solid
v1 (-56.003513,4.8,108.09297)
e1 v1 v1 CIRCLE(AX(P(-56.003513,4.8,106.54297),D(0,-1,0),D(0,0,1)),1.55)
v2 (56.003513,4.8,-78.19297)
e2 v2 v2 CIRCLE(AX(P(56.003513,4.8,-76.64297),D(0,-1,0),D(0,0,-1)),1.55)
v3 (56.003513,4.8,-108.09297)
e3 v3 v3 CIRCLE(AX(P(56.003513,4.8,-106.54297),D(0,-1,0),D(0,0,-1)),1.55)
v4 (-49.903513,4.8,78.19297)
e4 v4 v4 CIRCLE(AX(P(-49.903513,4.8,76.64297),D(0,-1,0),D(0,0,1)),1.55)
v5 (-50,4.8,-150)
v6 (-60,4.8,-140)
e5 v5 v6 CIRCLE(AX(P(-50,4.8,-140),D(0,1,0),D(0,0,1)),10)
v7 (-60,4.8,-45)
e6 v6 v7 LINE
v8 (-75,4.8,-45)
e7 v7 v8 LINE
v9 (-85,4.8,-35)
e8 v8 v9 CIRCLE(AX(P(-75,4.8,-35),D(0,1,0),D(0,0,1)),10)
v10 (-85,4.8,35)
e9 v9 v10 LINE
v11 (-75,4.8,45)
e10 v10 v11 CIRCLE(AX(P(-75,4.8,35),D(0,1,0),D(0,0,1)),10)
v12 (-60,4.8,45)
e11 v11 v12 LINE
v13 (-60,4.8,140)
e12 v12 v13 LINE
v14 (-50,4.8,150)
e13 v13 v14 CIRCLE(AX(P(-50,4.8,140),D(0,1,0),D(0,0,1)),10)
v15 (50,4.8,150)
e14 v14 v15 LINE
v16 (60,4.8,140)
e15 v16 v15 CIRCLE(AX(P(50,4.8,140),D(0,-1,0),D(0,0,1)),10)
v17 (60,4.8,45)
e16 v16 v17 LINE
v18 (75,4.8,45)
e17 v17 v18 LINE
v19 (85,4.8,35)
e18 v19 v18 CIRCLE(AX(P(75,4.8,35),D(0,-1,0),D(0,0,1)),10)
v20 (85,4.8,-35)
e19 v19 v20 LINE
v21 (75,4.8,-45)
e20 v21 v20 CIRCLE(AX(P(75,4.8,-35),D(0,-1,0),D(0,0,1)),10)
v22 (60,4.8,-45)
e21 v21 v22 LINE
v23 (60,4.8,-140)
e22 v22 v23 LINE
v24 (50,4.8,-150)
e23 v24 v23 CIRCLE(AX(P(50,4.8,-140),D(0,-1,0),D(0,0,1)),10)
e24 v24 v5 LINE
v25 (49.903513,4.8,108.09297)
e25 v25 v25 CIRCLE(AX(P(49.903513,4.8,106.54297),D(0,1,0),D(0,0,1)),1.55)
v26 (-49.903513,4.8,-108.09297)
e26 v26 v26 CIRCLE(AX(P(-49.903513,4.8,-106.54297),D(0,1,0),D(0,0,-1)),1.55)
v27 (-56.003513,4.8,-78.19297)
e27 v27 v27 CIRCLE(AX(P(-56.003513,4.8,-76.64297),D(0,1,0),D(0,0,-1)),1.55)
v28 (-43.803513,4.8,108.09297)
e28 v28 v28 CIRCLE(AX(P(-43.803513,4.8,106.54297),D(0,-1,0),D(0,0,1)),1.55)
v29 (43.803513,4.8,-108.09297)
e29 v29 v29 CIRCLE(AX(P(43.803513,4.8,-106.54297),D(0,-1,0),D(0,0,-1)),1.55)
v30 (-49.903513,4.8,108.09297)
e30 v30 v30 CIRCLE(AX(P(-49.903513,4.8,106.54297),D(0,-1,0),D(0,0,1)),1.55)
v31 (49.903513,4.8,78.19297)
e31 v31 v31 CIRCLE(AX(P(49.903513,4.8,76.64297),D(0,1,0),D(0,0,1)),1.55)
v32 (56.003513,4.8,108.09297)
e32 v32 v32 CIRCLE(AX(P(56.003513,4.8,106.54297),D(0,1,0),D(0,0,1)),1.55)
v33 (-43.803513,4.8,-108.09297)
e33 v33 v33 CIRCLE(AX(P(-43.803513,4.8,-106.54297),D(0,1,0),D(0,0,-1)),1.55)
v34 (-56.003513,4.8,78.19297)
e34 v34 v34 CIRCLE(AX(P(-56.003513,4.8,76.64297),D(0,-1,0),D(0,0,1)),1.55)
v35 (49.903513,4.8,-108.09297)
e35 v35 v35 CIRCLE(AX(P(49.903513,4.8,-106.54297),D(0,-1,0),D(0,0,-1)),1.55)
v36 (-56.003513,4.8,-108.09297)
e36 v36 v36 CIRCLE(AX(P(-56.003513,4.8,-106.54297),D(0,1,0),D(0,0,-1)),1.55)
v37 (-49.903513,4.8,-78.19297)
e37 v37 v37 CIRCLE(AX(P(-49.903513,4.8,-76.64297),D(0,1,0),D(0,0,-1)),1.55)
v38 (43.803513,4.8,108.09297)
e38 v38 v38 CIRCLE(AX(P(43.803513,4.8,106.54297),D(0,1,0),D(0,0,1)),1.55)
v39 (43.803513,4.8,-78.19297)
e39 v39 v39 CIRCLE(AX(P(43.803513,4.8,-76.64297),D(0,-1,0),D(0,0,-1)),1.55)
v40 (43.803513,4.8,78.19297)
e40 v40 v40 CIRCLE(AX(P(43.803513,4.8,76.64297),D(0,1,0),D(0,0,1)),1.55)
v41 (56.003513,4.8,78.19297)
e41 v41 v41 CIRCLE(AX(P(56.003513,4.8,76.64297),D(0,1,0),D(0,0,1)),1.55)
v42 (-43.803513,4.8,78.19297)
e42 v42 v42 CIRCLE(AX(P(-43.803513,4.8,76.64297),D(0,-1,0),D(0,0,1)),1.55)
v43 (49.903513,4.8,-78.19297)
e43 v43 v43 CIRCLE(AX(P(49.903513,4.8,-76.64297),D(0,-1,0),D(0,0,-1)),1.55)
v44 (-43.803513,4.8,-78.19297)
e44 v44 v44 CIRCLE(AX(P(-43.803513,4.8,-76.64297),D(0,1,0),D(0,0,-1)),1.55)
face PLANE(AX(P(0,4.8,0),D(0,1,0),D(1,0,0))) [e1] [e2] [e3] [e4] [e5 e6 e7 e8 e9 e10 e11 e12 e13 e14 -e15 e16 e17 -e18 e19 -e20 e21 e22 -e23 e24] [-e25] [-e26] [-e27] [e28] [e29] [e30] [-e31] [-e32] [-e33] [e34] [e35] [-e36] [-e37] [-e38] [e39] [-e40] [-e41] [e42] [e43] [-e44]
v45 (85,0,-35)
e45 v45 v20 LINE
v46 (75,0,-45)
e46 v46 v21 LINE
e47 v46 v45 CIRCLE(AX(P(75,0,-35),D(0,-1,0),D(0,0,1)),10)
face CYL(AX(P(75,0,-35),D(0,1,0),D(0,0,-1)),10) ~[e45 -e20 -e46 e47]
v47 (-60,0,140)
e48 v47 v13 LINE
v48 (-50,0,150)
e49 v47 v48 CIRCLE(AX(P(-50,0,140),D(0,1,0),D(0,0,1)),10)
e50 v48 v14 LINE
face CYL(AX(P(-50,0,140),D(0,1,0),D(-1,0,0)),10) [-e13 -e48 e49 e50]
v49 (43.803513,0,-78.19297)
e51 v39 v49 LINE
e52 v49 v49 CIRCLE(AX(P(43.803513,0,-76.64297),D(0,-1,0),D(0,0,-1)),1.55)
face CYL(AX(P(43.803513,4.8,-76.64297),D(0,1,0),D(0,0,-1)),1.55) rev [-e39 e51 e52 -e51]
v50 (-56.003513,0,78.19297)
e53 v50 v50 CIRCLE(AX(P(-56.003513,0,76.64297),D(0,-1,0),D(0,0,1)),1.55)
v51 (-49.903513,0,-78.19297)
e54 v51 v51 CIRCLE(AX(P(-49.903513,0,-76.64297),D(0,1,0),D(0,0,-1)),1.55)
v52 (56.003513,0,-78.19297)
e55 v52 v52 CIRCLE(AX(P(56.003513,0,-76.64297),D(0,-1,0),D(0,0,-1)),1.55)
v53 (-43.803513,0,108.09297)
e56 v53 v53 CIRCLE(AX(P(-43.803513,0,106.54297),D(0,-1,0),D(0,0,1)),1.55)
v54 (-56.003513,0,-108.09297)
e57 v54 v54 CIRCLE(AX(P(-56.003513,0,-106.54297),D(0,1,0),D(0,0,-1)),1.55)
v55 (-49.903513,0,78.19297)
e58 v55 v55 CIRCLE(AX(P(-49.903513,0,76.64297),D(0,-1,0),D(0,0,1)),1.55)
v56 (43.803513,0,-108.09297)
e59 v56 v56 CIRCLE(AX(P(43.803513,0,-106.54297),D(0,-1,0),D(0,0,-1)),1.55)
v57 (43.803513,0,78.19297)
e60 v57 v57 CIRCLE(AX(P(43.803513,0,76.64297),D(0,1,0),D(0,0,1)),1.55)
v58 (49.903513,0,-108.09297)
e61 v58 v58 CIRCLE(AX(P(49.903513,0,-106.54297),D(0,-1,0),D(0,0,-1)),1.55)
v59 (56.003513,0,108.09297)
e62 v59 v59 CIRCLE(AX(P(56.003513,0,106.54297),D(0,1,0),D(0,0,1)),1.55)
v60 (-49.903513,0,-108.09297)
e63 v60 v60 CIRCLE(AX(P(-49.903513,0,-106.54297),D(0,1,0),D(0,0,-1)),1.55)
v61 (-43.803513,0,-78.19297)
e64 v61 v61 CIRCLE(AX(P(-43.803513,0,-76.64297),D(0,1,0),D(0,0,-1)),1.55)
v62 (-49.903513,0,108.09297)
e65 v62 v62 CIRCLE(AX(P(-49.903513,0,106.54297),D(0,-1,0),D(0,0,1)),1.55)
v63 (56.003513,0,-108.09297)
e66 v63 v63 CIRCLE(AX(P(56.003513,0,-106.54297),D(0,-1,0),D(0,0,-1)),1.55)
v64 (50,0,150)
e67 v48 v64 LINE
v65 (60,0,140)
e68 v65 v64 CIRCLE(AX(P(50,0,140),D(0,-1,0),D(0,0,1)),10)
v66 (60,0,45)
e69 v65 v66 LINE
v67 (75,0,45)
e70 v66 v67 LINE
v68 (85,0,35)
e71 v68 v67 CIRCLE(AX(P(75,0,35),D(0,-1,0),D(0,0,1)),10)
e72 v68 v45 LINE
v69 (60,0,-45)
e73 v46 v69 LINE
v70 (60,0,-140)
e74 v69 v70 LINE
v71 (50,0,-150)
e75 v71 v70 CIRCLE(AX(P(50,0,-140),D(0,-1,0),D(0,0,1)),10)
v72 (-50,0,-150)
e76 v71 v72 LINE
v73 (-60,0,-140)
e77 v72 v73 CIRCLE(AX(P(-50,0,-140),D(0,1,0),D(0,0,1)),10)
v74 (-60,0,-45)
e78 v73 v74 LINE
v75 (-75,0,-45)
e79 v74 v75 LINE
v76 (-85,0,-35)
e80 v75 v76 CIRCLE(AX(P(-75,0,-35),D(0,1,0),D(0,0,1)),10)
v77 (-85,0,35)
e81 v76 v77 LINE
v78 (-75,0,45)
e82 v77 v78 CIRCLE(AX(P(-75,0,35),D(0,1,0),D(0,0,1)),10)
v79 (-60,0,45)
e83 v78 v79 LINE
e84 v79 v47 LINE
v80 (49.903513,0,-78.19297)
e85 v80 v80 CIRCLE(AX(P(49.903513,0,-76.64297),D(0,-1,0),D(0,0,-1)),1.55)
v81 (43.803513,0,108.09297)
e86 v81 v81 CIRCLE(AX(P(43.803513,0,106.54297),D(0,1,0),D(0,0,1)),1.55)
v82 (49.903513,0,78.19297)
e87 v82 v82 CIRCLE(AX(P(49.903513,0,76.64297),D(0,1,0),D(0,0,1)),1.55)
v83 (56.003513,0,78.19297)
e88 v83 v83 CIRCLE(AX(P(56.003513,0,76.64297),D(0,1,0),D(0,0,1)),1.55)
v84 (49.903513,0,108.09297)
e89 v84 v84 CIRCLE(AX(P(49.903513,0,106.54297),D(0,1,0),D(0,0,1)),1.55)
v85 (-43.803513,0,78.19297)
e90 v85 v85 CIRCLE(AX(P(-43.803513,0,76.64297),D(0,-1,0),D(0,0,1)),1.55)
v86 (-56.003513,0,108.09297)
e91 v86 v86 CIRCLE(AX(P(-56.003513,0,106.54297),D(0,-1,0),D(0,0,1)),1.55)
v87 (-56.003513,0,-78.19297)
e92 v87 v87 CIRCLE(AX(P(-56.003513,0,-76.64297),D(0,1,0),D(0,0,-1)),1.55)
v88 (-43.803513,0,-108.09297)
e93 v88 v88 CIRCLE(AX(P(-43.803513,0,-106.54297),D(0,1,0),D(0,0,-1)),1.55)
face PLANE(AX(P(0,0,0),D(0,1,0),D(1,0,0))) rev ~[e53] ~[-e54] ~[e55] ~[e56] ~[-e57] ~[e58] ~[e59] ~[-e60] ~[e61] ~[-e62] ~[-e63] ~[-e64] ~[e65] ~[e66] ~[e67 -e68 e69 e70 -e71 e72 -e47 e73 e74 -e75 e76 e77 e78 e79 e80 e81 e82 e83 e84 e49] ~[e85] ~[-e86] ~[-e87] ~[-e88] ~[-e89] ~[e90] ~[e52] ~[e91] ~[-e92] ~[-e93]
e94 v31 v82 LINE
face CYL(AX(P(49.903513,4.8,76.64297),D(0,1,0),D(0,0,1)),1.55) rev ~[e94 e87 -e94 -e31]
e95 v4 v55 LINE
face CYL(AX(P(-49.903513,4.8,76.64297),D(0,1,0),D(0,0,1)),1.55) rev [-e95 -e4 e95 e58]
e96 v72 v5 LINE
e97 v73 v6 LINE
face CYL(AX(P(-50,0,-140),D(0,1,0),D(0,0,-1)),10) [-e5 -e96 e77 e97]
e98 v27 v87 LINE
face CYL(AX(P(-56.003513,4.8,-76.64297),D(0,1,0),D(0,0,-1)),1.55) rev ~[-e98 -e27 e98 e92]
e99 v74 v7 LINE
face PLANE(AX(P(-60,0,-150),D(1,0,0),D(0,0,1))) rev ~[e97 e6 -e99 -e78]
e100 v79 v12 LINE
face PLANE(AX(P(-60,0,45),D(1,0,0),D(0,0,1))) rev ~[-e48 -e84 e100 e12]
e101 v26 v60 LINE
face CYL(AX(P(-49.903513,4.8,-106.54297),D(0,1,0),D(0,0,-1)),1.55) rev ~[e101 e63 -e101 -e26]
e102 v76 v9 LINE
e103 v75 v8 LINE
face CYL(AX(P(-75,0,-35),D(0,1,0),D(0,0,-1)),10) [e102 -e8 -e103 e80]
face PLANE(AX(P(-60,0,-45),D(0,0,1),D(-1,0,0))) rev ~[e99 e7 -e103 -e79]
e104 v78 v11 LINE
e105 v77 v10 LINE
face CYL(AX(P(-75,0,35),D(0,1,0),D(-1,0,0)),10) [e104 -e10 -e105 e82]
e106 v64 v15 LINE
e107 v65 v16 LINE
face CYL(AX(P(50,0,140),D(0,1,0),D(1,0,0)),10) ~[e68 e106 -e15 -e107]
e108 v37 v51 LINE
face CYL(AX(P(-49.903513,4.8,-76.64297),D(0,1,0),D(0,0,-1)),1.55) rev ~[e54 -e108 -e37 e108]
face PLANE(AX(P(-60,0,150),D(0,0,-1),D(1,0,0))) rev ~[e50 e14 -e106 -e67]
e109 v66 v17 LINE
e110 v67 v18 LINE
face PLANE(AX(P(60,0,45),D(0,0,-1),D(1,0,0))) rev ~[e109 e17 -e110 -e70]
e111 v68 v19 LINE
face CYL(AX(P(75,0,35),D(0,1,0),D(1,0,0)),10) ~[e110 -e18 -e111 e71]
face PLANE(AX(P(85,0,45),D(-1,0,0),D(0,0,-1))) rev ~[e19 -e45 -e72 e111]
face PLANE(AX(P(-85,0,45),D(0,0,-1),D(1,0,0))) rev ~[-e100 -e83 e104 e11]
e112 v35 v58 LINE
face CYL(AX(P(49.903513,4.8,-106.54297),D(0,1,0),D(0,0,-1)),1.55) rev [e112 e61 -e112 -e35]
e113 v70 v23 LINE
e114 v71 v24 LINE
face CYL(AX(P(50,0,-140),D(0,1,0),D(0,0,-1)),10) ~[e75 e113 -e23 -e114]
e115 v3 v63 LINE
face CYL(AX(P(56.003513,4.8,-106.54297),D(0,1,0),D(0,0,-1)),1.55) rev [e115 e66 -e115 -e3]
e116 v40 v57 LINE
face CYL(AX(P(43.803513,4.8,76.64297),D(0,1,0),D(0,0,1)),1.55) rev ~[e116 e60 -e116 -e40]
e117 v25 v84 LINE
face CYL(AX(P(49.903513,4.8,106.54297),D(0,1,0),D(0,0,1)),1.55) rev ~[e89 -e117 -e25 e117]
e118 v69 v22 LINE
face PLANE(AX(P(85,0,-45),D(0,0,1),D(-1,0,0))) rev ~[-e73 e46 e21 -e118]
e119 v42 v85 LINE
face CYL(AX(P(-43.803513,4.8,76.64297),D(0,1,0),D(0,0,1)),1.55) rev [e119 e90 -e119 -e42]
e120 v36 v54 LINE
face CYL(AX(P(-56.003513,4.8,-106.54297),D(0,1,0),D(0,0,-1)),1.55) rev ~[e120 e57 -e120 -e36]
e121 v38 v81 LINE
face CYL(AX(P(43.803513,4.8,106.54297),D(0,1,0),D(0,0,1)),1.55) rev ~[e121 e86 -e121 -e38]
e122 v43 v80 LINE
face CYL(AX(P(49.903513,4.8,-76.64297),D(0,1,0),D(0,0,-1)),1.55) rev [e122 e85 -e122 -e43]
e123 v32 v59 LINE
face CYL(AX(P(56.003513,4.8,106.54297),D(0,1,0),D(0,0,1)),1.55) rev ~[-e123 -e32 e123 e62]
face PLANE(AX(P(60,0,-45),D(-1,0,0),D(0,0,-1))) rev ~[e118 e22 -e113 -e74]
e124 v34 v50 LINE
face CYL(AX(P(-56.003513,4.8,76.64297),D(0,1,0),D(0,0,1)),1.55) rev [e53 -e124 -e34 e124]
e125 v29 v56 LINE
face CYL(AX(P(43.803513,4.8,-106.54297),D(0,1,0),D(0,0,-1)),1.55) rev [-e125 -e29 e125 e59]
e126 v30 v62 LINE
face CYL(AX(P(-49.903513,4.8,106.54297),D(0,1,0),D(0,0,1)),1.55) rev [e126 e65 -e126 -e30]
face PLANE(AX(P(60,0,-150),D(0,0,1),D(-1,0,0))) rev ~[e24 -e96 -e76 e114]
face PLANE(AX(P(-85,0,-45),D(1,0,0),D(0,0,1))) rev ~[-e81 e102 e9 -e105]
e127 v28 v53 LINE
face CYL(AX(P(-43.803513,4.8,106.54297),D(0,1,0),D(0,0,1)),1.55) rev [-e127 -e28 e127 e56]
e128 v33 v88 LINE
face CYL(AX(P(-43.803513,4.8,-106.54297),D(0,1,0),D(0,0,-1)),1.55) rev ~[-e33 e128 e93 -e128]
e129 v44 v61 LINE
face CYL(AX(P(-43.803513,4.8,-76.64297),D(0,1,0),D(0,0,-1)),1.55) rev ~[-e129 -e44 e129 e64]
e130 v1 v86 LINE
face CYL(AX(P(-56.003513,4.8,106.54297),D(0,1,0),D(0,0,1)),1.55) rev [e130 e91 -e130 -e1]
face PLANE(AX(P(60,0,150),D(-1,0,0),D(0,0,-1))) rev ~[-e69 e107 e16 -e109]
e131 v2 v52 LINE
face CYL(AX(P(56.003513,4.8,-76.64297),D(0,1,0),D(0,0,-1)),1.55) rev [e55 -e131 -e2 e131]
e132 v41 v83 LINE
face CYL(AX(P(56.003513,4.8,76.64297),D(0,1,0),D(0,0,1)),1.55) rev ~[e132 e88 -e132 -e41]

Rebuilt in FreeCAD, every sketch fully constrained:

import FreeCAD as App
import Part
import Sketcher
from FreeCAD import Vector


def edges_at(feature, points):
    """Names of the edges that pass closest to the given points."""
    edges = feature.Shape.Edges
    near = lambda p: min(range(len(edges)), key=lambda i: edges[i].distToShape(Part.Vertex(*p))[0])
    return sorted({f"Edge{near(p) + 1}" for p in points})

doc = App.newDocument("Part")
body = doc.addObject("PartDesign::Body", "Body")

# Sketch on XZ plane
sketch1 = doc.addObject("Sketcher::SketchObject", "Sketch")
body.addObject(sketch1)
sketch1.AttachmentSupport = (doc.XZ_Plane, [""])
sketch1.MapMode = "FlatFace"
sketch1.addGeometry([
    Part.LineSegment(Vector(60, -150, 0), Vector(-60, -150, 0)),  # 0
    Part.LineSegment(Vector(-60, -150, 0), Vector(-60, -45, 0)),  # 1
    Part.LineSegment(Vector(-60, -45, 0), Vector(-85, -45, 0)),  # 2
    Part.LineSegment(Vector(-85, -45, 0), Vector(-85, 45, 0)),  # 3
    Part.LineSegment(Vector(-85, 45, 0), Vector(-60, 45, 0)),  # 4
    Part.LineSegment(Vector(-60, 45, 0), Vector(-60, 150, 0)),  # 5
    Part.LineSegment(Vector(-60, 150, 0), Vector(60, 150, 0)),  # 6
    Part.LineSegment(Vector(60, 150, 0), Vector(60, 45, 0)),  # 7
    Part.LineSegment(Vector(60, 45, 0), Vector(85, 45, 0)),  # 8
    Part.LineSegment(Vector(85, 45, 0), Vector(85, -45, 0)),  # 9
    Part.LineSegment(Vector(85, -45, 0), Vector(60, -45, 0)),  # 10
    Part.LineSegment(Vector(60, -45, 0), Vector(60, -150, 0)),  # 11
], False)
sketch1.addConstraint([
    Sketcher.Constraint("Coincident", 0, 2, 1, 1),
    Sketcher.Constraint("Coincident", 1, 2, 2, 1),
    Sketcher.Constraint("Coincident", 2, 2, 3, 1),
    Sketcher.Constraint("Coincident", 3, 2, 4, 1),
    Sketcher.Constraint("Coincident", 4, 2, 5, 1),
    Sketcher.Constraint("Coincident", 5, 2, 6, 1),
    Sketcher.Constraint("Coincident", 6, 2, 7, 1),
    Sketcher.Constraint("Coincident", 7, 2, 8, 1),
    Sketcher.Constraint("Coincident", 8, 2, 9, 1),
    Sketcher.Constraint("Coincident", 9, 2, 10, 1),
    Sketcher.Constraint("Coincident", 10, 2, 11, 1),
    Sketcher.Constraint("Coincident", 11, 2, 0, 1),
    Sketcher.Constraint("Horizontal", 0),
    Sketcher.Constraint("Vertical", 1),
    Sketcher.Constraint("Horizontal", 2),
    Sketcher.Constraint("Vertical", 3),
    Sketcher.Constraint("Horizontal", 4),
    Sketcher.Constraint("Vertical", 5),
    Sketcher.Constraint("Horizontal", 6),
    Sketcher.Constraint("Vertical", 7),
    Sketcher.Constraint("Horizontal", 8),
    Sketcher.Constraint("Vertical", 9),
    Sketcher.Constraint("Horizontal", 10),
    Sketcher.Constraint("Vertical", 11),
    Sketcher.Constraint("Symmetric", 0, 2, 6, 2, -1, 1),
    Sketcher.Constraint("Symmetric", 2, 2, 8, 2, -1, 1),
    Sketcher.Constraint("Symmetric", 4, 2, 10, 2, -1, 1),
    Sketcher.Constraint("Symmetric", 4, 2, 7, 2, -2),
    Sketcher.Constraint("DistanceX", 0, 2, 0, 1, 120.0),
    Sketcher.Constraint("DistanceX", 2, 2, 2, 1, 25.0),
    Sketcher.Constraint("DistanceY", 1, 1, 1, 2, 105.0),
    Sketcher.Constraint("DistanceY", 3, 1, 3, 2, 90.0),
])
pad1 = doc.addObject("PartDesign::Pad", "Pad")
body.addObject(pad1)
pad1.Profile = sketch1
pad1.Length = 4.8
pad1.Reversed = True

# Sketch on XZ plane
sketch2 = doc.addObject("Sketcher::SketchObject", "Sketch001")
body.addObject(sketch2)
sketch2.AttachmentSupport = (doc.XZ_Plane, [""])
sketch2.MapMode = "FlatFace"
sketch2.AttachmentOffset = App.Placement(Vector(0, 0, -4.8), App.Rotation())
sketch2.addGeometry([
    Part.Circle(Vector(56.003513, 76.64297, 0), Vector(0, 0, 1), 1.55),  # 0
    Part.Circle(Vector(49.903513, 76.64297, 0), Vector(0, 0, 1), 1.55),  # 1
    Part.Circle(Vector(56.003513, 106.54297, 0), Vector(0, 0, 1), 1.55),  # 2
    Part.Circle(Vector(49.903513, 106.54297, 0), Vector(0, 0, 1), 1.55),  # 3
    Part.Circle(Vector(43.803513, 76.64297, 0), Vector(0, 0, 1), 1.55),  # 4
    Part.Circle(Vector(43.803513, 106.54297, 0), Vector(0, 0, 1), 1.55),  # 5
], False)
sketch2.addConstraint([
    Sketcher.Constraint("Equal", 0, 1),
    Sketcher.Constraint("Equal", 1, 2),
    Sketcher.Constraint("Equal", 2, 3),
    Sketcher.Constraint("Equal", 3, 4),
    Sketcher.Constraint("Equal", 4, 5),
    Sketcher.Constraint("Horizontal", 0, 3, 1, 3),
    Sketcher.Constraint("Horizontal", 2, 3, 3, 3),
    Sketcher.Constraint("Horizontal", 1, 3, 4, 3),
    Sketcher.Constraint("Horizontal", 3, 3, 5, 3),
    Sketcher.Constraint("Vertical", 0, 3, 2, 3),
    Sketcher.Constraint("Vertical", 1, 3, 3, 3),
    Sketcher.Constraint("Vertical", 4, 3, 5, 3),
    Sketcher.Constraint("Diameter", 0, 3.1),
    Sketcher.Constraint("DistanceX", 1, 3, 0, 3, 6.1),
    Sketcher.Constraint("DistanceY", 0, 3, 2, 3, 29.9),
    Sketcher.Constraint("DistanceX", 4, 3, 1, 3, 6.1),
    Sketcher.Constraint("DistanceY", -1, 1, 0, 3, 76.64297),
    Sketcher.Constraint("DistanceX", -1, 1, 0, 3, 56.003513),
])
pocket1 = doc.addObject("PartDesign::Pocket", "Pocket")
body.addObject(pocket1)
pocket1.Profile = sketch2
pocket1.Length = 4.8
pocket1.Reversed = True
doc.recompute()

mirrored = doc.addObject("PartDesign::Mirrored", "Mirrored")
body.addObject(mirrored)
mirrored.Originals = [pocket1]
mirrored.MirrorPlane = (doc.YZ_Plane, [""])
body.Tip = mirrored
doc.recompute()

mirrored2 = doc.addObject("PartDesign::Mirrored", "Mirrored001")
body.addObject(mirrored2)
mirrored2.Originals = [pocket1]
mirrored2.MirrorPlane = (doc.XY_Plane, [""])
body.Tip = mirrored2

# Sketch on XZ plane
sketch3 = doc.addObject("Sketcher::SketchObject", "Sketch002")
body.addObject(sketch3)
sketch3.AttachmentSupport = (doc.XZ_Plane, [""])
sketch3.MapMode = "FlatFace"
sketch3.AttachmentOffset = App.Placement(Vector(0, 0, -4.8), App.Rotation())
sketch3.addGeometry([
    Part.Circle(Vector(-56.003513, -76.64297, 0), Vector(0, 0, 1), 1.55),  # 0
    Part.Circle(Vector(-49.903513, -76.64297, 0), Vector(0, 0, 1), 1.55),  # 1
    Part.Circle(Vector(-56.003513, -106.54297, 0), Vector(0, 0, 1), 1.55),  # 2
    Part.Circle(Vector(-49.903513, -106.54297, 0), Vector(0, 0, 1), 1.55),  # 3
    Part.Circle(Vector(-43.803513, -76.64297, 0), Vector(0, 0, 1), 1.55),  # 4
    Part.Circle(Vector(-43.803513, -106.54297, 0), Vector(0, 0, 1), 1.55),  # 5
], False)
sketch3.addConstraint([
    Sketcher.Constraint("Equal", 0, 1),
    Sketcher.Constraint("Equal", 1, 2),
    Sketcher.Constraint("Equal", 2, 3),
    Sketcher.Constraint("Equal", 3, 4),
    Sketcher.Constraint("Equal", 4, 5),
    Sketcher.Constraint("Horizontal", 0, 3, 1, 3),
    Sketcher.Constraint("Horizontal", 2, 3, 3, 3),
    Sketcher.Constraint("Horizontal", 1, 3, 4, 3),
    Sketcher.Constraint("Horizontal", 3, 3, 5, 3),
    Sketcher.Constraint("Vertical", 0, 3, 2, 3),
    Sketcher.Constraint("Vertical", 1, 3, 3, 3),
    Sketcher.Constraint("Vertical", 4, 3, 5, 3),
    Sketcher.Constraint("Diameter", 0, 3.1),
    Sketcher.Constraint("DistanceX", 0, 3, 1, 3, 6.1),
    Sketcher.Constraint("DistanceY", 2, 3, 0, 3, 29.9),
    Sketcher.Constraint("DistanceX", 1, 3, 4, 3, 6.1),
    Sketcher.Constraint("DistanceY", 0, 3, -1, 1, 76.64297),
    Sketcher.Constraint("DistanceX", 0, 3, -1, 1, 56.003513),
])
pocket2 = doc.addObject("PartDesign::Pocket", "Pocket001")
body.addObject(pocket2)
pocket2.Profile = sketch3
pocket2.Length = 4.8
pocket2.Reversed = True
doc.recompute()

fillet = doc.addObject("PartDesign::Fillet", "Fillet")
body.addObject(fillet)
fillet.Base = (pocket2, edges_at(pocket2, [
    (85, 2.4, -45),
    (85, 2.4, 45),
    (60, 2.4, 150),
    (-60, 2.4, 150),
    (-85, 2.4, 45),
    (-85, 2.4, -45),
    (-60, 2.4, -150),
    (60, 2.4, -150),
]))
fillet.Radius = 10

doc.recompute()
